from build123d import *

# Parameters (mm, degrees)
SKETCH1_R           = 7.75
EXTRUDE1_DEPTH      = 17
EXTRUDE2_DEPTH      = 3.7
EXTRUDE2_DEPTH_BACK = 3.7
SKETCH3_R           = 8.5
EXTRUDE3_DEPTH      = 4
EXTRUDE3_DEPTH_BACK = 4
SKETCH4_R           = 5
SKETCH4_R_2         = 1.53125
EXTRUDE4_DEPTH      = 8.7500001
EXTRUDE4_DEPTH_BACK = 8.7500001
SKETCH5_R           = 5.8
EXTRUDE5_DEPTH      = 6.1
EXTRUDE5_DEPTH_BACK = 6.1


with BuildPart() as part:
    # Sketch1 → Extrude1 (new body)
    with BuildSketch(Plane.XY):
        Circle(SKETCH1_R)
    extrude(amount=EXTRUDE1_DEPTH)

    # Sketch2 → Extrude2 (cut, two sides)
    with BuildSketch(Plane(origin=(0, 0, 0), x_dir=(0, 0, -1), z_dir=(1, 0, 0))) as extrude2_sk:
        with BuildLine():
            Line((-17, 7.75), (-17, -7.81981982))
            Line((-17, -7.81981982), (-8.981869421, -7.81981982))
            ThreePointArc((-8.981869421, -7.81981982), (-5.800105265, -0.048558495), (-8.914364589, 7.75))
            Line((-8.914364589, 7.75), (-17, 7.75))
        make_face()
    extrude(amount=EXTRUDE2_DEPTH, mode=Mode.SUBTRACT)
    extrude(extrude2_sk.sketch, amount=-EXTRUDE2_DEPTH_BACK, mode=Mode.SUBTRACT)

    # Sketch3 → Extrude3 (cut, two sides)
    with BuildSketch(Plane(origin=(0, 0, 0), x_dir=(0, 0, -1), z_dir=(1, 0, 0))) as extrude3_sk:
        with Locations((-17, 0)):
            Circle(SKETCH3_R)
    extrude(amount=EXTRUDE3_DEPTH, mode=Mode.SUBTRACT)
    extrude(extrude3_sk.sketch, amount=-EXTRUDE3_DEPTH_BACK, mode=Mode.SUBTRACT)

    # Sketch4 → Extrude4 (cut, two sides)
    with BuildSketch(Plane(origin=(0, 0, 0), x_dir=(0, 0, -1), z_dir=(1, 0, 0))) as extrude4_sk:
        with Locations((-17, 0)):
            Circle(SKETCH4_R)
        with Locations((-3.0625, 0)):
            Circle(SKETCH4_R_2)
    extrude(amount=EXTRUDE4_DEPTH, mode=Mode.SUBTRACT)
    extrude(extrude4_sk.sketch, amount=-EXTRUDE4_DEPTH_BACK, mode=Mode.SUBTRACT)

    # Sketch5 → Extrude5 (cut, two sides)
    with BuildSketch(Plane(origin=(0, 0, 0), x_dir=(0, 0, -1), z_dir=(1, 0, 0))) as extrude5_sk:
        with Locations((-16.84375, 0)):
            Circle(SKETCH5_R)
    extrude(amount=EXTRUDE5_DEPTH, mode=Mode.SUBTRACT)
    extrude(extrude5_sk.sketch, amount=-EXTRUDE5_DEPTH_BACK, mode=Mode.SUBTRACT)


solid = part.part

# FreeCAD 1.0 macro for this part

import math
import FreeCAD as App
import Part
import Sketcher

V = App.Vector

doc = App.newDocument("Part")
params = doc.addObject("Spreadsheet::Sheet", "Params")
for row, (alias, value) in enumerate([
    ("sketch1_diameter", "15.5 mm"),
    ("pad1_length", "17 mm"),
    ("sketch2_radius", "11.2 mm"),
    ("pocket1_length", "3.7 mm"),
    ("pocket1_length2", "3.7 mm"),
    ("sketch3_diameter", "17 mm"),
    ("pocket2_length", "4 mm"),
    ("pocket2_length2", "4 mm"),
    ("sketch4_diameter", "10 mm"),
    ("sketch5_diameter", "11.6 mm"),
    ("pocket4_length", "6.1 mm"),
    ("pocket4_length2", "6.1 mm"),
], start=1):
    params.set(f"A{row}", alias)
    params.set(f"B{row}", "=" + value)
    params.setAlias(f"B{row}", alias)

body = doc.addObject("PartDesign::Body", "Body")

sketch1 = body.newObject("Sketcher::SketchObject", "Sketch")
sketch1.AttachmentSupport = (doc.getObject("XY_Plane"), [""])
sketch1.MapMode = "FlatFace"
sketch1.addGeometry(Part.Circle(V(0, 0, 0), V(0, 0, 1), 7.75), False)
sketch1.addConstraint([
    Sketcher.Constraint("Coincident", 0, 3, -1, 1),
    Sketcher.Constraint("Diameter", 0, 15.5),
])
sketch1.setExpression("Constraints[1]", "Params.sketch1_diameter")
pad1 = body.newObject("PartDesign::Pad", "Pad")
pad1.Profile = sketch1
pad1.setExpression("Length", "Params.pad1_length")

sketch2 = body.newObject("Sketcher::SketchObject", "Sketch001")
sketch2.AttachmentSupport = (doc.getObject("YZ_Plane"), [""])
sketch2.MapMode = "FlatFace"
sketch2.addGeometry([
    Part.LineSegment(V(7.75, 17, 0), V(-7.81982, 17, 0)),
    Part.LineSegment(V(-7.81982, 17, 0), V(-7.81982, 8.981869, 0)),
    Part.ArcOfCircle(Part.Circle(V(0, 17, 0), V(0, 0, 1), 11.2), math.radians(-134.282623), math.radians(-46.214199)),
    Part.LineSegment(V(7.75, 8.914365, 0), V(7.75, 17, 0)),
], False)
sketch2.addConstraint([
    Sketcher.Constraint("Coincident", 0, 2, 1, 1),
    Sketcher.Constraint("Coincident", 1, 2, 2, 1),
    Sketcher.Constraint("Coincident", 2, 2, 3, 1),
    Sketcher.Constraint("Coincident", 3, 2, 0, 1),
    Sketcher.Constraint("Horizontal", 0),
    Sketcher.Constraint("Vertical", 1),
    Sketcher.Constraint("Vertical", 3),
    Sketcher.Constraint("PointOnObject", 2, 3, -2),
    Sketcher.Constraint("Horizontal", 2, 3, 0, 2),
    Sketcher.Constraint("Radius", 2, 11.2),
    Sketcher.Constraint("DistanceY", -1, 1, 2, 3, 17.0),
    Sketcher.Constraint("DistanceX", -1, 1, 2, 2, 7.75),
    Sketcher.Constraint("DistanceX", 0, 2, 0, 1, 15.56982),
])
sketch2.setExpression("Constraints[9]", "Params.sketch2_radius")
pocket1 = body.newObject("PartDesign::Pocket", "Pocket")
pocket1.Profile = sketch2
pocket1.Type = "TwoLengths"
pocket1.setExpression("Length", "Params.pocket1_length")
pocket1.setExpression("Length2", "Params.pocket1_length2")
pocket1.Reversed = True

sketch3 = body.newObject("Sketcher::SketchObject", "Sketch002")
sketch3.AttachmentSupport = (doc.getObject("YZ_Plane"), [""])
sketch3.MapMode = "FlatFace"
sketch3.addGeometry(Part.Circle(V(0, 17, 0), V(0, 0, 1), 8.5), False)
sketch3.addConstraint([
    Sketcher.Constraint("PointOnObject", 0, 3, -2),
    Sketcher.Constraint("Diameter", 0, 17.0),
    Sketcher.Constraint("DistanceY", -1, 1, 0, 3, 17.0),
])
sketch3.setExpression("Constraints[1]", "Params.sketch3_diameter")
pocket2 = body.newObject("PartDesign::Pocket", "Pocket001")
pocket2.Profile = sketch3
pocket2.Type = "TwoLengths"
pocket2.setExpression("Length", "Params.pocket2_length")
pocket2.setExpression("Length2", "Params.pocket2_length2")
pocket2.Reversed = True

sketch4 = body.newObject("Sketcher::SketchObject", "Sketch003")
sketch4.AttachmentSupport = (doc.getObject("YZ_Plane"), [""])
sketch4.MapMode = "FlatFace"
sketch4.addGeometry([
    Part.Circle(V(0, 17, 0), V(0, 0, 1), 5),
    Part.Circle(V(0, 3.0625, 0), V(0, 0, 1), 1.53125),
], False)
sketch4.addConstraint([
    Sketcher.Constraint("PointOnObject", 0, 3, -2),
    Sketcher.Constraint("PointOnObject", 1, 3, -2),
    Sketcher.Constraint("Diameter", 0, 10.0),
    Sketcher.Constraint("DistanceY", -1, 1, 0, 3, 17.0),
    Sketcher.Constraint("Diameter", 1, 3.0625),
    Sketcher.Constraint("DistanceY", -1, 1, 1, 3, 3.0625),
])
sketch4.setExpression("Constraints[2]", "Params.sketch4_diameter")
pocket3 = body.newObject("PartDesign::Pocket", "Pocket002")
pocket3.Profile = sketch4
pocket3.Type = "ThroughAll"
pocket3.Midplane = True

sketch5 = body.newObject("Sketcher::SketchObject", "Sketch004")
sketch5.AttachmentSupport = (doc.getObject("YZ_Plane"), [""])
sketch5.MapMode = "FlatFace"
sketch5.addGeometry(Part.Circle(V(0, 16.84375, 0), V(0, 0, 1), 5.8), False)
sketch5.addConstraint([
    Sketcher.Constraint("PointOnObject", 0, 3, -2),
    Sketcher.Constraint("Diameter", 0, 11.6),
    Sketcher.Constraint("DistanceY", -1, 1, 0, 3, 16.84375),
])
sketch5.setExpression("Constraints[1]", "Params.sketch5_diameter")
pocket4 = body.newObject("PartDesign::Pocket", "Pocket003")
pocket4.Profile = sketch5
pocket4.Type = "TwoLengths"
pocket4.setExpression("Length", "Params.pocket4_length")
pocket4.setExpression("Length2", "Params.pocket4_length2")
pocket4.Reversed = True

doc.recompute()
